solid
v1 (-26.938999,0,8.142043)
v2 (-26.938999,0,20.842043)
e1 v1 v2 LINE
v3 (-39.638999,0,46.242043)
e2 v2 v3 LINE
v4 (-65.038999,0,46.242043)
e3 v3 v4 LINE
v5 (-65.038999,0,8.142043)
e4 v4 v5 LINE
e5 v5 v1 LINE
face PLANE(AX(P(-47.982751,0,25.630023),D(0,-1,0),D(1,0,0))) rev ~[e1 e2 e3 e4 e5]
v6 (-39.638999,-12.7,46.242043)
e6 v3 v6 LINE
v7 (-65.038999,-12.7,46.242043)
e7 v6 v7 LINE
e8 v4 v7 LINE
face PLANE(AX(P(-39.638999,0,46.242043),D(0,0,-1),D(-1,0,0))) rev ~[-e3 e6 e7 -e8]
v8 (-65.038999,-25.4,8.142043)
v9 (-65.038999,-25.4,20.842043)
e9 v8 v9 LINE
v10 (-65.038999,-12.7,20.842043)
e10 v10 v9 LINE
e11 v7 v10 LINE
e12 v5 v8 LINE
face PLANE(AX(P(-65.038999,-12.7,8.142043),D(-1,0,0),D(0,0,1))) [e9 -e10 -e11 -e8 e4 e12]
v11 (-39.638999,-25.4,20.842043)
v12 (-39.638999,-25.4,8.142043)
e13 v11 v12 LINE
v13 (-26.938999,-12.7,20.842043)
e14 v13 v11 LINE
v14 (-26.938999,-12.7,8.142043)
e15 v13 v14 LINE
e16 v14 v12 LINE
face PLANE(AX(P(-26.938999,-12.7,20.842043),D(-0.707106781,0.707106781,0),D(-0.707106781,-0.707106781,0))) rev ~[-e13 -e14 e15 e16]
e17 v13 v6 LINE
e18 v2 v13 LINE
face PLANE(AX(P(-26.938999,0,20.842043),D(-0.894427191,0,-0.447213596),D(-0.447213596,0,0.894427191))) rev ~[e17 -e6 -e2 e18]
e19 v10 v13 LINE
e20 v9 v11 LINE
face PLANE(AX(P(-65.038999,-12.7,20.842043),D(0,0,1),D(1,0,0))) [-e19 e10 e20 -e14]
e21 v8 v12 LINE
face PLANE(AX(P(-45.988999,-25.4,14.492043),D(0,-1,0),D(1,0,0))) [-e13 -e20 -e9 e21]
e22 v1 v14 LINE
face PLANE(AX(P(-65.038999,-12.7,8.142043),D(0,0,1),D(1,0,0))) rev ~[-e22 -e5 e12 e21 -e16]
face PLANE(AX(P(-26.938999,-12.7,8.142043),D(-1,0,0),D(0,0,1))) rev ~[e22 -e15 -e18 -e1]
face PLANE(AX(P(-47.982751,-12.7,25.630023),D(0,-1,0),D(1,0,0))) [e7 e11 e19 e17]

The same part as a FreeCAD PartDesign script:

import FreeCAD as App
import Part
import Sketcher
from FreeCAD import Vector
Q = App.Units.Quantity

doc = App.newDocument("Part")
body = doc.addObject("PartDesign::Body", "Body")

# Sketch on XZ plane
sketch1 = body.newObject("Sketcher::SketchObject", "Sketch")
sketch1.AttachmentSupport = (doc.getObject("XZ_Plane"), [""])
sketch1.MapMode = "FlatFace"
sketch1.addGeometry([
    Part.LineSegment(Vector(-40, 46, 0), Vector(-65, 46, 0)),  # 0
    Part.LineSegment(Vector(-65, 46, 0), Vector(-65, 8, 0)),  # 1
    Part.LineSegment(Vector(-65, 8, 0), Vector(-27, 8, 0)),  # 2
    Part.LineSegment(Vector(-27, 8, 0), Vector(-27, 21, 0)),  # 3
    Part.LineSegment(Vector(-27, 21, 0), Vector(-40, 46, 0)),  # 4
], False)
sketch1.addConstraint([
    Sketcher.Constraint("Coincident", 0, 2, 1, 1),
    Sketcher.Constraint("Coincident", 1, 2, 2, 1),
    Sketcher.Constraint("Coincident", 2, 2, 3, 1),
    Sketcher.Constraint("Coincident", 3, 2, 4, 1),
    Sketcher.Constraint("Coincident", 4, 2, 0, 1),
    Sketcher.Constraint("Horizontal", 0),
    Sketcher.Constraint("Vertical", 1),
    Sketcher.Constraint("Horizontal", 2),
    Sketcher.Constraint("Vertical", 3),
    Sketcher.Constraint("Equal", 2, 1),
    Sketcher.Constraint("DistanceX", 0, 2, 0, 1, Q("1 in")),
    Sketcher.Constraint("DistanceX", 2, 1, 2, 2, Q("1.5 in")),
    Sketcher.Constraint("DistanceY", 3, 1, 3, 2, Q("0.5 in")),
    Sketcher.Constraint("DistanceX", 0, 2, -1, 1, Q("65.038999 mm")),
    Sketcher.Constraint("DistanceY", -1, 1, 0, 2, Q("46.242043 mm")),
])
pad1 = body.newObject("PartDesign::Pad", "Pad")
pad1.Profile = sketch1
pad1.Length = Q("0.5 in")

# Sketch on XZ plane
sketch2 = body.newObject("Sketcher::SketchObject", "Sketch001")
sketch2.AttachmentSupport = (doc.getObject("XZ_Plane"), [""])
sketch2.MapMode = "FlatFace"
sketch2.AttachmentOffset = App.Placement(Vector(0, 0, 0.5 * 25.4), App.Rotation())
sketch2.addGeometry([
    Part.LineSegment(Vector(-65, 21, 0), Vector(-65, 8, 0)),
    Part.LineSegment(Vector(-65, 8, 0), Vector(-27, 8, 0)),
    Part.LineSegment(Vector(-27, 8, 0), Vector(-27, 21, 0)),
    Part.LineSegment(Vector(-27, 21, 0), Vector(-65, 21, 0)),
], False)
sketch2.addConstraint([
    Sketcher.Constraint("Coincident", 0, 2, 1, 1),
    Sketcher.Constraint("Coincident", 1, 2, 2, 1),
    Sketcher.Constraint("Coincident", 2, 2, 3, 1),
    Sketcher.Constraint("Coincident", 3, 2, 0, 1),
    Sketcher.Constraint("Vertical", 0),
    Sketcher.Constraint("Horizontal", 1),
    Sketcher.Constraint("Vertical", 2),
    Sketcher.Constraint("Horizontal", 3),
    Sketcher.Constraint("DistanceX", 1, 1, 1, 2, Q("1.5 in")),
    Sketcher.Constraint("DistanceY", 0, 2, 0, 1, Q("0.5 in")),
    Sketcher.Constraint("DistanceX", 0, 2, -1, 1, Q("65.038999 mm")),
    Sketcher.Constraint("DistanceY", -1, 1, 0, 2, Q("8.142043 mm")),
])
pad2 = body.newObject("PartDesign::Pad", "Pad001")
pad2.Profile = sketch2
pad2.Length = Q("0.5 in")

# Sketch on XY plane
sketch3 = body.newObject("Sketcher::SketchObject", "Sketch002")
sketch3.AttachmentSupport = (doc.getObject("XY_Plane"), [""])
sketch3.MapMode = "FlatFace"
sketch3.AttachmentOffset = App.Placement(Vector(0, 0, 20.842043), App.Rotation())
sketch3.addGeometry([
    Part.LineSegment(Vector(-27, -25, 0), Vector(-27, -13, 0)),
    Part.LineSegment(Vector(-27, -13, 0), Vector(-40, -25, 0)),
    Part.LineSegment(Vector(-40, -25, 0), Vector(-27, -25, 0)),
], False)
sketch3.addConstraint([
    Sketcher.Constraint("Coincident", 0, 2, 1, 1),
    Sketcher.Constraint("Coincident", 1, 2, 2, 1),
    Sketcher.Constraint("Coincident", 2, 2, 0, 1),
    Sketcher.Constraint("Vertical", 0),
    Sketcher.Constraint("Horizontal", 2),
    Sketcher.Constraint("Equal", 2, 0),
    Sketcher.Constraint("DistanceX", 2, 1, 2, 2, Q("0.5 in")),
    Sketcher.Constraint("DistanceY", 1, 2, -1, 1, Q("1 in")),
    Sketcher.Constraint("DistanceX", 0, 2, -1, 1, Q("26.938999 mm")),
])
pocket1 = body.newObject("PartDesign::Pocket", "Pocket")
pocket1.Profile = sketch3
pocket1.Type = "ThroughAll"

doc.recompute()
